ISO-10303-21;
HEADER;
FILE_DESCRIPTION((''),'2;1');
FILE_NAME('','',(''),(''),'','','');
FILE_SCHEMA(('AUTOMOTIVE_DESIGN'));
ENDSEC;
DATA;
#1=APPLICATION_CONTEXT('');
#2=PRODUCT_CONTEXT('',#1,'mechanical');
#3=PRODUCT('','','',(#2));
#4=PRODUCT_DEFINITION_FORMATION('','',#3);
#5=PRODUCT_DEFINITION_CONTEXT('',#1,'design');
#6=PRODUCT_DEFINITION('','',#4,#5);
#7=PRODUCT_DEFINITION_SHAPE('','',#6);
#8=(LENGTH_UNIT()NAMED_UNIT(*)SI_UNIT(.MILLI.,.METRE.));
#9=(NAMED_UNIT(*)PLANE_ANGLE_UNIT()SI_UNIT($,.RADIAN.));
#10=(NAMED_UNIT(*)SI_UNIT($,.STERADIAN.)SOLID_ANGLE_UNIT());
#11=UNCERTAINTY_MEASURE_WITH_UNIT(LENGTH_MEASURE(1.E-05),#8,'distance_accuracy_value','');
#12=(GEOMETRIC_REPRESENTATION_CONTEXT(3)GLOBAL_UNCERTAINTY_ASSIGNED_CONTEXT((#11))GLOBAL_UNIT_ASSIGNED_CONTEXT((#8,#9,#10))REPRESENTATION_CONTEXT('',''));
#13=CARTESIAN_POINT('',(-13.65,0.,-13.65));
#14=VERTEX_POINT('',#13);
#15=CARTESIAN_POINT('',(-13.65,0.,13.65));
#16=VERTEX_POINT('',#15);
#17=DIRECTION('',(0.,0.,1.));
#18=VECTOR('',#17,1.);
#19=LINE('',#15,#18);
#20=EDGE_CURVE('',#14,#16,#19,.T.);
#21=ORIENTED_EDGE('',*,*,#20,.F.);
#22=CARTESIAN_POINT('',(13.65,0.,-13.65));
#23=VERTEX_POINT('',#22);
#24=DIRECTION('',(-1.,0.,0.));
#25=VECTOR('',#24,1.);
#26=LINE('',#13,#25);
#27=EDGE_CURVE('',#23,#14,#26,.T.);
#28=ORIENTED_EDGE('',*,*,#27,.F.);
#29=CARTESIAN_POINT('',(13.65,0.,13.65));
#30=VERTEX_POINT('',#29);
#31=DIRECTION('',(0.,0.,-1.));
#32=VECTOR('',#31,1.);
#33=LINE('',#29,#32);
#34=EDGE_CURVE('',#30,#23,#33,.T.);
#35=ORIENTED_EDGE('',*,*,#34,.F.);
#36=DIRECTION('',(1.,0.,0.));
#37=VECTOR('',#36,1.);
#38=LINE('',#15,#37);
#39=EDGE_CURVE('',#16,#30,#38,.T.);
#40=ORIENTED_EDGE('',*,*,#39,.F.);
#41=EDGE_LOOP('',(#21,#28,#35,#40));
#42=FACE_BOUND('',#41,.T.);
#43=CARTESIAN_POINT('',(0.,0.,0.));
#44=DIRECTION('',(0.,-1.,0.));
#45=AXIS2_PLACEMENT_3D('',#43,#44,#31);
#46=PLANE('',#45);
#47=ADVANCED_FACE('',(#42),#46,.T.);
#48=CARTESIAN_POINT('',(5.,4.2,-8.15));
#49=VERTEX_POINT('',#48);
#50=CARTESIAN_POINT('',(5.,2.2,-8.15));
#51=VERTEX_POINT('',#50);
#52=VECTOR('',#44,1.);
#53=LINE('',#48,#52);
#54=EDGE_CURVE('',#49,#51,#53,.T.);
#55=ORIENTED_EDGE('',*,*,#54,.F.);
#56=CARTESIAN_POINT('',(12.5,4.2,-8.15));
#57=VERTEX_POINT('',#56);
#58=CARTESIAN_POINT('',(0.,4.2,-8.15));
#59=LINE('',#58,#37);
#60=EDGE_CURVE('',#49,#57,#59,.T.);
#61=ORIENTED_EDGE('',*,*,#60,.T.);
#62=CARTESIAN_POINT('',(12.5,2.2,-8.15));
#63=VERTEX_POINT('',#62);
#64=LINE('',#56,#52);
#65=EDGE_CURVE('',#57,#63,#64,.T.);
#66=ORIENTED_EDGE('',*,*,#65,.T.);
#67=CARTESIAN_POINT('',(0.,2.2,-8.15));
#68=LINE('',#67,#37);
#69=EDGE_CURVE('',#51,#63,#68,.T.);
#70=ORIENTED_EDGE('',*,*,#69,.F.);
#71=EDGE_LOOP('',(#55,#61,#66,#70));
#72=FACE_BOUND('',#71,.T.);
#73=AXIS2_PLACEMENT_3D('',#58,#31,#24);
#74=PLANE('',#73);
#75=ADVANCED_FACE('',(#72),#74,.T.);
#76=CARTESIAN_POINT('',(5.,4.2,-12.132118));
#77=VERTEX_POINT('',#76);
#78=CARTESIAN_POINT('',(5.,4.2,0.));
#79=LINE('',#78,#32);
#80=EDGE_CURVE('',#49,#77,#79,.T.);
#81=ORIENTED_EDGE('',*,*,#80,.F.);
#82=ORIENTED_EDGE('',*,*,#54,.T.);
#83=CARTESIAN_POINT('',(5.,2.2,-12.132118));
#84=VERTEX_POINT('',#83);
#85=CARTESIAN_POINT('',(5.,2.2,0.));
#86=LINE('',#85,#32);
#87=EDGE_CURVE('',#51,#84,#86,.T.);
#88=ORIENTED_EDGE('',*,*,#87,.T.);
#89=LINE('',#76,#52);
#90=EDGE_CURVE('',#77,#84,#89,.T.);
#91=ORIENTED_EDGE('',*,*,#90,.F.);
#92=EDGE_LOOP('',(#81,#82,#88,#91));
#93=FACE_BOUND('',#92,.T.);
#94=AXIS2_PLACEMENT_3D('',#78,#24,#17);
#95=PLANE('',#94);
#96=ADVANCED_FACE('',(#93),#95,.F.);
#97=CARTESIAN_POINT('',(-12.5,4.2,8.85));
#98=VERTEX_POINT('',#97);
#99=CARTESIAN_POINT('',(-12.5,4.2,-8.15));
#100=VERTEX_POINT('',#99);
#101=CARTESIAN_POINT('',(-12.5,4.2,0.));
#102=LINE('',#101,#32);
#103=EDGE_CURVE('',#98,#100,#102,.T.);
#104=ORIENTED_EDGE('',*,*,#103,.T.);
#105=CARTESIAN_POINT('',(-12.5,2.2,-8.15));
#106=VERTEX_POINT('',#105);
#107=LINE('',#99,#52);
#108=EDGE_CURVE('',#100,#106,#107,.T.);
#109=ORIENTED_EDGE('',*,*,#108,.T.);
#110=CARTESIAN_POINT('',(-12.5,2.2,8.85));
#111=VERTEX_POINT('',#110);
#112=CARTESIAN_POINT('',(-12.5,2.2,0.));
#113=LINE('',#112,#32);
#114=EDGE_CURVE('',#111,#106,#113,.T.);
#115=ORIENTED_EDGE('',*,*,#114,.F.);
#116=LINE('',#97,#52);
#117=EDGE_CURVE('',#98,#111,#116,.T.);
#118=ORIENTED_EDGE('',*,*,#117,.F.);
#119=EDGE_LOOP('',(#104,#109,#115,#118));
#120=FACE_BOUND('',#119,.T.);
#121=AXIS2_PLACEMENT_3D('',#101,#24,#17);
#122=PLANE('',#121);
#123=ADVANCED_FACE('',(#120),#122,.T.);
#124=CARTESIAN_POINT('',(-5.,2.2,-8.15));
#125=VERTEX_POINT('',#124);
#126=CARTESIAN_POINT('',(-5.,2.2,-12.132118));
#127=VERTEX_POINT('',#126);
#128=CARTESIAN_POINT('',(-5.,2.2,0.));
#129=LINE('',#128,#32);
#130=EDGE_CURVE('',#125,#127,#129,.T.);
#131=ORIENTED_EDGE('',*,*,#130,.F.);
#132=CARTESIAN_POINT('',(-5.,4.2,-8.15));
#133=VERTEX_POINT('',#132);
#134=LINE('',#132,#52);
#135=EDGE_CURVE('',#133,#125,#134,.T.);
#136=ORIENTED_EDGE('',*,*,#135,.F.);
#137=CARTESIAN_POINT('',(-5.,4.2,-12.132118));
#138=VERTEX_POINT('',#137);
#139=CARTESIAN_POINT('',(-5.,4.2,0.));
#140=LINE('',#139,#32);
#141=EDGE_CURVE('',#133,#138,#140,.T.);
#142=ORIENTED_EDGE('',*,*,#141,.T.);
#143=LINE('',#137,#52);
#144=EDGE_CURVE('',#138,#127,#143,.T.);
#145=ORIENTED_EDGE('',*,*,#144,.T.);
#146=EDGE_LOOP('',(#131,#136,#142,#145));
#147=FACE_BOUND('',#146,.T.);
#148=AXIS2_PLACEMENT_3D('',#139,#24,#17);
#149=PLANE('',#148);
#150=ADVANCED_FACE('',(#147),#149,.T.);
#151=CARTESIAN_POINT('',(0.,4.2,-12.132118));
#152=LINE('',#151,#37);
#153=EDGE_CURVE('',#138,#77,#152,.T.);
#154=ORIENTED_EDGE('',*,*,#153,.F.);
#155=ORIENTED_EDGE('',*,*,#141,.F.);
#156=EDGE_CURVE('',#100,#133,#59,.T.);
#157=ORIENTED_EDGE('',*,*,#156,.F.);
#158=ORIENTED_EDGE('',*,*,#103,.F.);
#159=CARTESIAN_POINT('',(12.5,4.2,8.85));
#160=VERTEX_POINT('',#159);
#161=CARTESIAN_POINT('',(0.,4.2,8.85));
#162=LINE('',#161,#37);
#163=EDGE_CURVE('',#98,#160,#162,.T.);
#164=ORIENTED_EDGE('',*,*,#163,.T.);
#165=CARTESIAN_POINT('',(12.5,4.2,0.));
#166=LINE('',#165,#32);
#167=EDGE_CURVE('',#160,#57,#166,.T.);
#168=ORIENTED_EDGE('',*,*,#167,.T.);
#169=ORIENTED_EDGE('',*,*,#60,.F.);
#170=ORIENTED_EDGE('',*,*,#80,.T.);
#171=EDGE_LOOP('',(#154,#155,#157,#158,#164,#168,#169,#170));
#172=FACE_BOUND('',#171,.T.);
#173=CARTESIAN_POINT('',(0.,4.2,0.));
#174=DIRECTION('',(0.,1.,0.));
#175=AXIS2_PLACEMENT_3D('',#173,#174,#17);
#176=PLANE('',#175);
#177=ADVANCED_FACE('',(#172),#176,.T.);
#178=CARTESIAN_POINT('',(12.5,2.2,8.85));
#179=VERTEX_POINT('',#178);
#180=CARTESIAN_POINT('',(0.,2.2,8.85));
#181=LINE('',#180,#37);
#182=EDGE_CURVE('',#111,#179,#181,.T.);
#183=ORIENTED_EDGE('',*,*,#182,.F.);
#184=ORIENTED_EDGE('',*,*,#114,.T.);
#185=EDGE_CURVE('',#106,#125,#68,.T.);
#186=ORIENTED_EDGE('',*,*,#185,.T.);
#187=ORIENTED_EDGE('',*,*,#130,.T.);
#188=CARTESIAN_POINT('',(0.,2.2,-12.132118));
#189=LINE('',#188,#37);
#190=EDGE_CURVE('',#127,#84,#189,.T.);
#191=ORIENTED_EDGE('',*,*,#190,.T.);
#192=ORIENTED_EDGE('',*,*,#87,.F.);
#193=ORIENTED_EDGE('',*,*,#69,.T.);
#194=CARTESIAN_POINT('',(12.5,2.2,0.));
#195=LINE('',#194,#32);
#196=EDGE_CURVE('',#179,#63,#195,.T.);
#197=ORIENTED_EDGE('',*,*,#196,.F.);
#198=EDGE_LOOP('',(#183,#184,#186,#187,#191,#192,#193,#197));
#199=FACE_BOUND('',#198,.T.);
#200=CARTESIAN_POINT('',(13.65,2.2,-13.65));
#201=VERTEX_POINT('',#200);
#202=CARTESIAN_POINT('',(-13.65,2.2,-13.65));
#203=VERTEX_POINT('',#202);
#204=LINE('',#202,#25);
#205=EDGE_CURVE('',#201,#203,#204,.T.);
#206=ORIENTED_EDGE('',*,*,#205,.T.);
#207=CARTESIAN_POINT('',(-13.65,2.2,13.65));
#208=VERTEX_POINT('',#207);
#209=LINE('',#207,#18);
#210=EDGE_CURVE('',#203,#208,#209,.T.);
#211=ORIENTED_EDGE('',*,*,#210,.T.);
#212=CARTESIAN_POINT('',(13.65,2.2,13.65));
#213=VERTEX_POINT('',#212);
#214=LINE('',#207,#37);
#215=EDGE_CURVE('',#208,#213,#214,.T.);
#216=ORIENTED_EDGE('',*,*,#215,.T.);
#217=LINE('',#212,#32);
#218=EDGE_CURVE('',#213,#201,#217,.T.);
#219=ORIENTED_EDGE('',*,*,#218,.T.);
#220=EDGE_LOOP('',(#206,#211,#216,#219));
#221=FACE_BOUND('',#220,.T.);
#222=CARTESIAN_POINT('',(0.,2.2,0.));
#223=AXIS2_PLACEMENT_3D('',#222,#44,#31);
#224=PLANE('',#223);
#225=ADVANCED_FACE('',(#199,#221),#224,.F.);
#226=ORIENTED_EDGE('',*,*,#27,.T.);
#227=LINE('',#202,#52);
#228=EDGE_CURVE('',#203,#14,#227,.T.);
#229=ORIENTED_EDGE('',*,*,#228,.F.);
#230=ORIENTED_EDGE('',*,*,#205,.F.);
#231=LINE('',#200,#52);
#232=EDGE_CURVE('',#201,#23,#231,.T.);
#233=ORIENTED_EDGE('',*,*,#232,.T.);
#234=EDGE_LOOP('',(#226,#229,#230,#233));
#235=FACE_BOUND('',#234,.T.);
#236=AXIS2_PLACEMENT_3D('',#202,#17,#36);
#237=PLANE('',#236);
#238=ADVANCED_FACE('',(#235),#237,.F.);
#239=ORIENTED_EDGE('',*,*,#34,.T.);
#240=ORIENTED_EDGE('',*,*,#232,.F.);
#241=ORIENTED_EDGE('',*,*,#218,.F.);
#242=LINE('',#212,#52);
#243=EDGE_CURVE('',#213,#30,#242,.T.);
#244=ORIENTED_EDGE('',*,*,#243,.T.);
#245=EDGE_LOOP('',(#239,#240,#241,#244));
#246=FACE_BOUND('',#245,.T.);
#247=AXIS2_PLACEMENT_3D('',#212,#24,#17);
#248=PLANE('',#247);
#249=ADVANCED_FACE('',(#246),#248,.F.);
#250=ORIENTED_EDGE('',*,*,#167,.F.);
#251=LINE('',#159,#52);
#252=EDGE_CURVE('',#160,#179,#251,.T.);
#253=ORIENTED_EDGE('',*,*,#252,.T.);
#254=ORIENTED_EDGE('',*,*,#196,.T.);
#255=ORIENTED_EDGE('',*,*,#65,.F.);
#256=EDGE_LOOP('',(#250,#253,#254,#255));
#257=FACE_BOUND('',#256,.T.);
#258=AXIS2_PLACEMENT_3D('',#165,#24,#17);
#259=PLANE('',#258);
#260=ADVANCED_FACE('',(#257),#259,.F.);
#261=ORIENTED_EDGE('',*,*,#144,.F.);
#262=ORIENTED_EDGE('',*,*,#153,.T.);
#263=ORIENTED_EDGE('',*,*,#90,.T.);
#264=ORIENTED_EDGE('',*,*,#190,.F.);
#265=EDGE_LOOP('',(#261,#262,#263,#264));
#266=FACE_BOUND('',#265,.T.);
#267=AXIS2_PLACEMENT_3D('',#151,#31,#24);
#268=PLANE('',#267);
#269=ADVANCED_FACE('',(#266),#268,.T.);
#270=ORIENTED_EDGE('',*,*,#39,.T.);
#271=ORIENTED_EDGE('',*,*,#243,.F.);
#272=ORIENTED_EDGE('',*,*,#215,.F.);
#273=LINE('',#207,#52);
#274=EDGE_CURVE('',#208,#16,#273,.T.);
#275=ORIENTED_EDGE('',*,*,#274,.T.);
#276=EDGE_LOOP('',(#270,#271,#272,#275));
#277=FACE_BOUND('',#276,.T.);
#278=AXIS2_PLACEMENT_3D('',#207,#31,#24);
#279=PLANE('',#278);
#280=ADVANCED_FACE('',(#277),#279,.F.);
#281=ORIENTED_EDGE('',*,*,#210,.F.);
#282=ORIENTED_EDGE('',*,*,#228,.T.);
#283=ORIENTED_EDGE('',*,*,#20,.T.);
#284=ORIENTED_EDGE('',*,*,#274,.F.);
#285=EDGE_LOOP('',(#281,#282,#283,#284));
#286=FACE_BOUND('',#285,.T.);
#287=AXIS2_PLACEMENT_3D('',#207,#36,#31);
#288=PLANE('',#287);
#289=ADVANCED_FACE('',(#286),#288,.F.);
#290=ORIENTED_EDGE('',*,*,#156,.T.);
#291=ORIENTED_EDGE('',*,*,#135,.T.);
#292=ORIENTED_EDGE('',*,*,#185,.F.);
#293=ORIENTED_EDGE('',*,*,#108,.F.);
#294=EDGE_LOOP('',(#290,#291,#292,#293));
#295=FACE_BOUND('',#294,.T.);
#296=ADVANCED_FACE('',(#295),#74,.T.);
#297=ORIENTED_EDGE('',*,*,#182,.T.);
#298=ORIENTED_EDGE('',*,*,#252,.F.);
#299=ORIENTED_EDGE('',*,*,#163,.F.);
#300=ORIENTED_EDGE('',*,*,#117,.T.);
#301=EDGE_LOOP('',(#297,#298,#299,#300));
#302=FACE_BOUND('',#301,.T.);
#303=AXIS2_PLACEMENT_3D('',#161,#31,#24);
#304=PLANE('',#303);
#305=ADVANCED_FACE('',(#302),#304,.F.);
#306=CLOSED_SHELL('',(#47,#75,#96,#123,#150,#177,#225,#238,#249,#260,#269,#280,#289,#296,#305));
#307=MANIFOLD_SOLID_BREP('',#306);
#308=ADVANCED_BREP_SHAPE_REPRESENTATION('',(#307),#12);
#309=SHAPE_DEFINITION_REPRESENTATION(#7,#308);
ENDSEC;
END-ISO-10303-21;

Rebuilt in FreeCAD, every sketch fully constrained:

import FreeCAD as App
import Part
import Sketcher


def add_polygon(sketch, points):
    """Adds a closed chain of lines whose ends are joined by coincident constraints."""
    first, n = sketch.GeometryCount, len(points)
    for a, b in zip(points, points[1:] + points[:1]):
        sketch.addGeometry(Part.LineSegment(App.Vector(*a, 0), App.Vector(*b, 0)), False)
    for i in range(n):
        sketch.addConstraint(Sketcher.Constraint("Coincident", first + i, 2, first + (i + 1) % n, 1))

doc = App.newDocument("Part")
body = doc.addObject("PartDesign::Body", "Body")

sketch1 = body.newObject("Sketcher::SketchObject", "Sketch")
sketch1.AttachmentSupport = (doc.getObject("XZ_Plane"), [""])
sketch1.MapMode = "FlatFace"
add_polygon(sketch1, [(-13.65, -13.65), (-13.65, 13.65), (13.65, 13.65), (13.65, -13.65)])
sketch1.addConstraint([
    Sketcher.Constraint("Vertical", 0),
    Sketcher.Constraint("Horizontal", 1),
    Sketcher.Constraint("Vertical", 2),
    Sketcher.Constraint("Horizontal", 3),
    Sketcher.Constraint("Symmetric", 0, 2, 2, 2, -1, 1),
    Sketcher.Constraint("Equal", 3, 0),
    Sketcher.Constraint("DistanceX", 1, 1, 1, 2, 27.3),
])
pad1 = body.newObject("PartDesign::Pad", "Pad")
pad1.Profile = sketch1
pad1.Length = 2.2
pad1.Reversed = True

sketch2 = body.newObject("Sketcher::SketchObject", "Sketch001")
sketch2.AttachmentSupport = (doc.getObject("XZ_Plane"), [""])
sketch2.MapMode = "FlatFace"
sketch2.AttachmentOffset = App.Placement(App.Vector(0, 0, -2.2), App.Rotation())
add_polygon(sketch2, [(-5, -12.132118), (-5, -8.15), (-12.5, -8.15), (-12.5, 8.85), (12.5, 8.85), (12.5, -8.15), (5, -8.15), (5, -12.132118)])
sketch2.addConstraint([
    Sketcher.Constraint("Vertical", 0),
    Sketcher.Constraint("Horizontal", 1),
    Sketcher.Constraint("Vertical", 2),
    Sketcher.Constraint("Horizontal", 3),
    Sketcher.Constraint("Vertical", 4),
    Sketcher.Constraint("Horizontal", 5),
    Sketcher.Constraint("Vertical", 6),
    Sketcher.Constraint("Horizontal", 7),
    Sketcher.Constraint("Symmetric", 1, 2, 4, 2, -2),
    Sketcher.Constraint("Equal", 1, 5),
    Sketcher.Constraint("DistanceX", 3, 1, 3, 2, 25.0),
    Sketcher.Constraint("DistanceX", 7, 2, 7, 1, 10.0),
    Sketcher.Constraint("DistanceY", 2, 1, 2, 2, 17.0),
    Sketcher.Constraint("DistanceY", 0, 2, -1, 1, 8.15),
    Sketcher.Constraint("DistanceY", 0, 1, 0, 2, 3.982118),
])
pad2 = body.newObject("PartDesign::Pad", "Pad001")
pad2.Profile = sketch2
pad2.Length = 2
pad2.Reversed = True

doc.recompute()
